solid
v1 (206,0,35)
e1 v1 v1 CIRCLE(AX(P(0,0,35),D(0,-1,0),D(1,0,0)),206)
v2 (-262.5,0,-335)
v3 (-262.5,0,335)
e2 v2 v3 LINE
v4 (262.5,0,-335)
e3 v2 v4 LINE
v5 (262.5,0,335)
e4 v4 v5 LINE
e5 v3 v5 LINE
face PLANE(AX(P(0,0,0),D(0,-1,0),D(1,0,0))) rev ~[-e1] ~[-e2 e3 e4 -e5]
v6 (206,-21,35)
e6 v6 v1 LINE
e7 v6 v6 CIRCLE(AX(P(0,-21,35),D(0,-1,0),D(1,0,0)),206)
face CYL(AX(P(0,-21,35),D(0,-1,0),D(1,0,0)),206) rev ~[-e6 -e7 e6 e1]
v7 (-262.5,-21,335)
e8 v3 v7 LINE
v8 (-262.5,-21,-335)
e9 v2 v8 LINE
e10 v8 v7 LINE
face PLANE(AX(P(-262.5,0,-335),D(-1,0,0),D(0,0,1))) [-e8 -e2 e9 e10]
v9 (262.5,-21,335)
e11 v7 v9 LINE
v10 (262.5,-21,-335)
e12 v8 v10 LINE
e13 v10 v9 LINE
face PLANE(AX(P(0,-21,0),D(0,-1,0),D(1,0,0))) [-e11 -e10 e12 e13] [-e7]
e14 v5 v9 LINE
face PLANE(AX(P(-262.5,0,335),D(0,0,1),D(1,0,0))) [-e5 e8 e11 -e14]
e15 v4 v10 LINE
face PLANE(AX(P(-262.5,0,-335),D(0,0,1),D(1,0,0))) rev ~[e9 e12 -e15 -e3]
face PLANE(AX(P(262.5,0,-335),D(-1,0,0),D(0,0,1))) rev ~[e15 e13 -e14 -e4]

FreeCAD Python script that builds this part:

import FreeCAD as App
import Part
import Sketcher

V = App.Vector
Q = App.Units.Quantity


def add_polygon(sketch, points):
    """Adds a closed chain of lines whose ends are joined by coincident constraints."""
    first, n = sketch.GeometryCount, len(points)
    for a, b in zip(points, points[1:] + points[:1]):
        sketch.addGeometry(Part.LineSegment(App.Vector(*a, 0), App.Vector(*b, 0)), False)
    for i in range(n):
        sketch.addConstraint(Sketcher.Constraint("Coincident", first + i, 2, first + (i + 1) % n, 1))

doc = App.newDocument("Part")
body = doc.addObject("PartDesign::Body", "Body")

sketch1 = doc.addObject("Sketcher::SketchObject", "Sketch")
body.addObject(sketch1)
sketch1.AttachmentSupport = (doc.XZ_Plane, [""])
sketch1.MapMode = "FlatFace"
add_polygon(sketch1, [(-262, 335), (-262, -335), (262, -335), (262, 335)])
sketch1.addConstraint([
    Sketcher.Constraint("Vertical", 0),
    Sketcher.Constraint("Horizontal", 1),
    Sketcher.Constraint("Vertical", 2),
    Sketcher.Constraint("Horizontal", 3),
    Sketcher.Constraint("Symmetric", 0, 2, 2, 2, -1, 1),
    Sketcher.Constraint("DistanceX", 1, 1, 1, 2, Q("525 mm")),
    Sketcher.Constraint("DistanceY", 0, 2, 0, 1, Q("670 mm")),
])
pad1 = doc.addObject("PartDesign::Pad", "Pad")
body.addObject(pad1)
pad1.Profile = sketch1
pad1.Length = 21

sketch2 = doc.addObject("Sketcher::SketchObject", "Sketch001")
body.addObject(sketch2)
sketch2.AttachmentSupport = (doc.XZ_Plane, [""])
sketch2.MapMode = "FlatFace"
sketch2.AttachmentOffset = App.Placement(V(0, 0, 21), App.Rotation())
sketch2.addGeometry(Part.Circle(V(0, 35, 0), V(0, 0, 1), 206), False)
sketch2.addConstraint([
    Sketcher.Constraint("PointOnObject", 0, 3, -2),
    Sketcher.Constraint("Diameter", 0, Q("412 mm")),
    Sketcher.Constraint("DistanceY", -1, 1, 0, 3, Q("35 mm")),
])
pocket1 = doc.addObject("PartDesign::Pocket", "Pocket")
body.addObject(pocket1)
pocket1.Profile = sketch2
pocket1.Length = 25

doc.recompute()
